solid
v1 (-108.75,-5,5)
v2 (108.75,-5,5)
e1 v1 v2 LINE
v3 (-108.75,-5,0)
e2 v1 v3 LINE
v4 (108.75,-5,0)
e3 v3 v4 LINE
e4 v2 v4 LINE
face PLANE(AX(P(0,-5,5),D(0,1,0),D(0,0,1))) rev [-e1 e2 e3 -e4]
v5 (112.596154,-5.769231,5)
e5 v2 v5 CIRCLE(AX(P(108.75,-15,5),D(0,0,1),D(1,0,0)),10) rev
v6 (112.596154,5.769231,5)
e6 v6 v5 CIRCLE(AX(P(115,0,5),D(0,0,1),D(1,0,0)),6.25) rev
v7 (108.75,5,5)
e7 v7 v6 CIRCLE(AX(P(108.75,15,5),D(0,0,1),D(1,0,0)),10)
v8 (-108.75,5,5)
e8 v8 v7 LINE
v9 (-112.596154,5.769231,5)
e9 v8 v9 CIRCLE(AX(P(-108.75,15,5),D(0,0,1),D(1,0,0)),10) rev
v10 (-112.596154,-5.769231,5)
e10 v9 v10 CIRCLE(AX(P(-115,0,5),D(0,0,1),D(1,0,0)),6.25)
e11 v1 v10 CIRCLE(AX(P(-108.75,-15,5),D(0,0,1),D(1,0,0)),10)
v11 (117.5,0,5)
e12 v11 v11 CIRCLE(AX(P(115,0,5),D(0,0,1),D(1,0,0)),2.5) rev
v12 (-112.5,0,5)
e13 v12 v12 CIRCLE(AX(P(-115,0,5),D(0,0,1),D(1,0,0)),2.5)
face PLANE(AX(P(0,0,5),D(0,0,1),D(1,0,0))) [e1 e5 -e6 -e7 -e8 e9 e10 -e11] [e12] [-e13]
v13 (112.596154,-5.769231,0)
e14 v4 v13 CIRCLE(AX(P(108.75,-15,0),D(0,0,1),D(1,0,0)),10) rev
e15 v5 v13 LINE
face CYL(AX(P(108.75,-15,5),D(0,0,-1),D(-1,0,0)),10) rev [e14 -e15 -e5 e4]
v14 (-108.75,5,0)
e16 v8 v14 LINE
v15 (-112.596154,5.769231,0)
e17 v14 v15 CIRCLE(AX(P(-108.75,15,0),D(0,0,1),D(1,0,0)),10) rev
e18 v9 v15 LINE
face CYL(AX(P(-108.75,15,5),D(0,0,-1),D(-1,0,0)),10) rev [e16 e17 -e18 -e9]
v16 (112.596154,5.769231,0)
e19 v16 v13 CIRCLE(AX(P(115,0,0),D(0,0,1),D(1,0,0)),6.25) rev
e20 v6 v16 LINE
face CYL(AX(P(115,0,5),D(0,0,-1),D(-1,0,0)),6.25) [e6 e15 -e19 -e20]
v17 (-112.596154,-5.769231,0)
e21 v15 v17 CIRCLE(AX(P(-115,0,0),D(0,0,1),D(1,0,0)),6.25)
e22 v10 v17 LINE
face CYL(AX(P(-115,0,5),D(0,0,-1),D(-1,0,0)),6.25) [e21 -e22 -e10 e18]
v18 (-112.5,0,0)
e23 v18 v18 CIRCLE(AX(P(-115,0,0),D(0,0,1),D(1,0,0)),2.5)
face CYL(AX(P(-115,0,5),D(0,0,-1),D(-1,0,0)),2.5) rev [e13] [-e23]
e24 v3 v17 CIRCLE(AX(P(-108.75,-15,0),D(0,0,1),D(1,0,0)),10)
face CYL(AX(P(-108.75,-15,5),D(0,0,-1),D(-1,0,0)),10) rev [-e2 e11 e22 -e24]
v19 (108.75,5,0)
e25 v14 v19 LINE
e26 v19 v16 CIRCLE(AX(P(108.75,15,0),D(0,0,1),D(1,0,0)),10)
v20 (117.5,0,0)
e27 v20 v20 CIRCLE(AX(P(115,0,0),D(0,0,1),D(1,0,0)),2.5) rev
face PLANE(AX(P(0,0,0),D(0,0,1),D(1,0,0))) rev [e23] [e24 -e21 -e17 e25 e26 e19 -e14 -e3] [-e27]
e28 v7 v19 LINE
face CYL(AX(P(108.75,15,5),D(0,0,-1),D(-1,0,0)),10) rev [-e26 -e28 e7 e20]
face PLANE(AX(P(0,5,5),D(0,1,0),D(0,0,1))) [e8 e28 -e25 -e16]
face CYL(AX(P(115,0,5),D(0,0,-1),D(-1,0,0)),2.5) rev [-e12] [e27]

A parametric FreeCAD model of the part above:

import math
import FreeCAD as App
import Part
import Sketcher
from FreeCAD import Vector
Q = App.Units.Quantity

doc = App.newDocument("Part")
body = doc.addObject("PartDesign::Body", "Body")

# Sketch on XY plane
sketch1 = body.newObject("Sketcher::SketchObject", "Sketch")
sketch1.AttachmentSupport = (doc.getObject("XY_Plane"), [""])
sketch1.MapMode = "FlatFace"
sketch1.addGeometry([
    Part.LineSegment(Vector(108.75, 5, 0), Vector(-108.75, 5, 0)),  # 0
    Part.ArcOfCircle(Part.Circle(Vector(-108.75, 15, 0), Vector(0, 0, 1), 10), math.radians(-112.619865), math.radians(-90)),  # 1
    Part.ArcOfCircle(Part.Circle(Vector(-115, 0, 0), Vector(0, 0, 1), 6.25), math.radians(67.380135), math.radians(292.619865)),  # 2
    Part.ArcOfCircle(Part.Circle(Vector(-108.75, -15, 0), Vector(0, 0, 1), 10), math.radians(90), math.radians(112.619865)),  # 3
    Part.LineSegment(Vector(-108.75, -5, 0), Vector(108.75, -5, 0)),  # 4
    Part.ArcOfCircle(Part.Circle(Vector(108.75, -15, 0), Vector(0, 0, 1), 10), math.radians(67.380135), math.radians(90)),  # 5
    Part.ArcOfCircle(Part.Circle(Vector(115, 0, 0), Vector(0, 0, 1), 6.25), math.radians(-112.619865), math.radians(112.619865)),  # 6
    Part.ArcOfCircle(Part.Circle(Vector(108.75, 15, 0), Vector(0, 0, 1), 10), math.radians(-90), math.radians(-67.380135)),  # 7
    Part.Circle(Vector(115, 0, 0), Vector(0, 0, 1), 2.5),  # 8
    Part.Circle(Vector(-115, 0, 0), Vector(0, 0, 1), 2.5),  # 9
], False)
sketch1.addConstraint([
    Sketcher.Constraint("Tangent", 0, 2, 1, 2),
    Sketcher.Constraint("Tangent", 1, 1, 2, 1),
    Sketcher.Constraint("Tangent", 2, 2, 3, 2),
    Sketcher.Constraint("Tangent", 3, 1, 4, 1),
    Sketcher.Constraint("Tangent", 4, 2, 5, 2),
    Sketcher.Constraint("Tangent", 5, 1, 6, 1),
    Sketcher.Constraint("Tangent", 6, 2, 7, 2),
    Sketcher.Constraint("Tangent", 7, 1, 0, 1),
    Sketcher.Constraint("Horizontal", 0),
    Sketcher.Constraint("Horizontal", 4),
    Sketcher.Constraint("Coincident", 8, 3, 6, 3),
    Sketcher.Constraint("Coincident", 9, 3, 2, 3),
    Sketcher.Constraint("Equal", 1, 3),
    Sketcher.Constraint("Equal", 3, 5),
    Sketcher.Constraint("Equal", 2, 6),
    Sketcher.Constraint("Equal", 5, 7),
    Sketcher.Constraint("Equal", 8, 9),
    Sketcher.Constraint("Symmetric", 1, 3, 5, 3, -1, 1),
    Sketcher.Constraint("Symmetric", 2, 3, 6, 3, -2),
    Sketcher.Constraint("Diameter", 8, Q("5 mm")),
    Sketcher.Constraint("Radius", 1, Q("10 mm")),
    Sketcher.Constraint("Radius", 2, Q("6.25 mm")),
    Sketcher.Constraint("DistanceX", 0, 2, 0, 1, Q("217.5 mm")),
    Sketcher.Constraint("DistanceY", -1, 1, 1, 3, Q("15 mm")),
])
pad1 = body.newObject("PartDesign::Pad", "Pad")
pad1.Profile = sketch1
pad1.Length = 5

doc.recompute()
